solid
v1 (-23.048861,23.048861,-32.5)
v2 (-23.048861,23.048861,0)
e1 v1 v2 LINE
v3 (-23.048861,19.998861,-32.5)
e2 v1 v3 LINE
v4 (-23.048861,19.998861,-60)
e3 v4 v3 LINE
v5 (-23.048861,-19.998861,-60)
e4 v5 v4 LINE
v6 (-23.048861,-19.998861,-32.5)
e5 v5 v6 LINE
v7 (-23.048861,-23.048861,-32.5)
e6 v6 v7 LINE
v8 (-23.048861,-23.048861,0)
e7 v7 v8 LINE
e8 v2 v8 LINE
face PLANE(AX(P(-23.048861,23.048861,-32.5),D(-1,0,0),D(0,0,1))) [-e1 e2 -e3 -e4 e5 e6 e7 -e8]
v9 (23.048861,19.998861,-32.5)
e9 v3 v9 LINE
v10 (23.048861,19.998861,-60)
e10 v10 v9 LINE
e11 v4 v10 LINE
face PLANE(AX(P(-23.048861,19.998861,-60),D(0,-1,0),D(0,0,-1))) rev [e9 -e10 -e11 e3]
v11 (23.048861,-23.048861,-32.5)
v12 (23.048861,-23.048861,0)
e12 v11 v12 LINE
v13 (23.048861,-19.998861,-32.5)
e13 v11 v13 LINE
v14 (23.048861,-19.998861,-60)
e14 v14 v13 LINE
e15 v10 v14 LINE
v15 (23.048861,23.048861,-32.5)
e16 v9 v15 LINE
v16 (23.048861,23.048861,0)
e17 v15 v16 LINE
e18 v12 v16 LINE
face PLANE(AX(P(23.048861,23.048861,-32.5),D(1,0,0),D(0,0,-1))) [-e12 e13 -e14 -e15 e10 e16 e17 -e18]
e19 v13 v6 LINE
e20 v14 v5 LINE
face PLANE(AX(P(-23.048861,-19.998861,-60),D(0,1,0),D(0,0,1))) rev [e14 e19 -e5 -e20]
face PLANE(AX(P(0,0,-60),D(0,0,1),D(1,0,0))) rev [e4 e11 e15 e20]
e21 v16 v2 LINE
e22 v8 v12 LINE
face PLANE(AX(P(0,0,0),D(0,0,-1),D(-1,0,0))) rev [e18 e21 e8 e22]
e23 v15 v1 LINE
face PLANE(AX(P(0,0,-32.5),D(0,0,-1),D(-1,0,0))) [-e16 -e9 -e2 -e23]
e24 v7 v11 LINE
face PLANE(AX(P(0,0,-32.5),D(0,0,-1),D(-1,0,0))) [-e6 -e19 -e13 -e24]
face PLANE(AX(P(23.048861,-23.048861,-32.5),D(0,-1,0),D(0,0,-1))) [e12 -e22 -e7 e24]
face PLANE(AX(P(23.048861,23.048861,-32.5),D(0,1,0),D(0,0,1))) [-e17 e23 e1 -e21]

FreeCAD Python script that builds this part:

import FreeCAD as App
import Part
import Sketcher


def add_polygon(sketch, points):
    """Adds a closed chain of lines whose ends are joined by coincident constraints."""
    first, n = sketch.GeometryCount, len(points)
    for a, b in zip(points, points[1:] + points[:1]):
        sketch.addGeometry(Part.LineSegment(App.Vector(*a, 0), App.Vector(*b, 0)), False)
    for i in range(n):
        sketch.addConstraint(Sketcher.Constraint("Coincident", first + i, 2, first + (i + 1) % n, 1))

doc = App.newDocument("Part")
body = doc.addObject("PartDesign::Body", "Body")

# Sketch on XY plane
sketch1 = body.newObject("Sketcher::SketchObject", "Sketch")
sketch1.AttachmentSupport = (doc.getObject("XY_Plane"), [""])
sketch1.MapMode = "FlatFace"
add_polygon(sketch1, [(23, -23), (23, 23), (-23, 23), (-23, -23)])  # lines 0-3
sketch1.addConstraint([
    Sketcher.Constraint("Vertical", 0),
    Sketcher.Constraint("Horizontal", 1),
    Sketcher.Constraint("Vertical", 2),
    Sketcher.Constraint("Horizontal", 3),
    Sketcher.Constraint("Symmetric", 0, 2, 2, 2, -1, 1),
    Sketcher.Constraint("Equal", 3, 0),
    Sketcher.Constraint("DistanceX", 1, 2, 1, 1, 46.097722),
])
pad1 = body.newObject("PartDesign::Pad", "Pad")
pad1.Profile = sketch1
pad1.Length = 32.5
pad1.Reversed = True

# Sketch on XY plane
sketch2 = body.newObject("Sketcher::SketchObject", "Sketch001")
sketch2.AttachmentSupport = (doc.getObject("XY_Plane"), [""])
sketch2.MapMode = "FlatFace"
sketch2.AttachmentOffset = App.Placement(App.Vector(0, 0, -32.5), App.Rotation())
add_polygon(sketch2, [(23, 20), (23, -20), (-23, -20), (-23, 20)])  # lines 0-3
sketch2.addConstraint([
    Sketcher.Constraint("Vertical", 0),
    Sketcher.Constraint("Horizontal", 1),
    Sketcher.Constraint("Vertical", 2),
    Sketcher.Constraint("Horizontal", 3),
    Sketcher.Constraint("Symmetric", 0, 2, 2, 2, -1, 1),
    Sketcher.Constraint("DistanceX", 1, 2, 1, 1, 46.097722),
    Sketcher.Constraint("DistanceY", 0, 2, 0, 1, 39.997722),
])
pad2 = body.newObject("PartDesign::Pad", "Pad001")
pad2.Profile = sketch2
pad2.Length = 27.5
pad2.Reversed = True

doc.recompute()
